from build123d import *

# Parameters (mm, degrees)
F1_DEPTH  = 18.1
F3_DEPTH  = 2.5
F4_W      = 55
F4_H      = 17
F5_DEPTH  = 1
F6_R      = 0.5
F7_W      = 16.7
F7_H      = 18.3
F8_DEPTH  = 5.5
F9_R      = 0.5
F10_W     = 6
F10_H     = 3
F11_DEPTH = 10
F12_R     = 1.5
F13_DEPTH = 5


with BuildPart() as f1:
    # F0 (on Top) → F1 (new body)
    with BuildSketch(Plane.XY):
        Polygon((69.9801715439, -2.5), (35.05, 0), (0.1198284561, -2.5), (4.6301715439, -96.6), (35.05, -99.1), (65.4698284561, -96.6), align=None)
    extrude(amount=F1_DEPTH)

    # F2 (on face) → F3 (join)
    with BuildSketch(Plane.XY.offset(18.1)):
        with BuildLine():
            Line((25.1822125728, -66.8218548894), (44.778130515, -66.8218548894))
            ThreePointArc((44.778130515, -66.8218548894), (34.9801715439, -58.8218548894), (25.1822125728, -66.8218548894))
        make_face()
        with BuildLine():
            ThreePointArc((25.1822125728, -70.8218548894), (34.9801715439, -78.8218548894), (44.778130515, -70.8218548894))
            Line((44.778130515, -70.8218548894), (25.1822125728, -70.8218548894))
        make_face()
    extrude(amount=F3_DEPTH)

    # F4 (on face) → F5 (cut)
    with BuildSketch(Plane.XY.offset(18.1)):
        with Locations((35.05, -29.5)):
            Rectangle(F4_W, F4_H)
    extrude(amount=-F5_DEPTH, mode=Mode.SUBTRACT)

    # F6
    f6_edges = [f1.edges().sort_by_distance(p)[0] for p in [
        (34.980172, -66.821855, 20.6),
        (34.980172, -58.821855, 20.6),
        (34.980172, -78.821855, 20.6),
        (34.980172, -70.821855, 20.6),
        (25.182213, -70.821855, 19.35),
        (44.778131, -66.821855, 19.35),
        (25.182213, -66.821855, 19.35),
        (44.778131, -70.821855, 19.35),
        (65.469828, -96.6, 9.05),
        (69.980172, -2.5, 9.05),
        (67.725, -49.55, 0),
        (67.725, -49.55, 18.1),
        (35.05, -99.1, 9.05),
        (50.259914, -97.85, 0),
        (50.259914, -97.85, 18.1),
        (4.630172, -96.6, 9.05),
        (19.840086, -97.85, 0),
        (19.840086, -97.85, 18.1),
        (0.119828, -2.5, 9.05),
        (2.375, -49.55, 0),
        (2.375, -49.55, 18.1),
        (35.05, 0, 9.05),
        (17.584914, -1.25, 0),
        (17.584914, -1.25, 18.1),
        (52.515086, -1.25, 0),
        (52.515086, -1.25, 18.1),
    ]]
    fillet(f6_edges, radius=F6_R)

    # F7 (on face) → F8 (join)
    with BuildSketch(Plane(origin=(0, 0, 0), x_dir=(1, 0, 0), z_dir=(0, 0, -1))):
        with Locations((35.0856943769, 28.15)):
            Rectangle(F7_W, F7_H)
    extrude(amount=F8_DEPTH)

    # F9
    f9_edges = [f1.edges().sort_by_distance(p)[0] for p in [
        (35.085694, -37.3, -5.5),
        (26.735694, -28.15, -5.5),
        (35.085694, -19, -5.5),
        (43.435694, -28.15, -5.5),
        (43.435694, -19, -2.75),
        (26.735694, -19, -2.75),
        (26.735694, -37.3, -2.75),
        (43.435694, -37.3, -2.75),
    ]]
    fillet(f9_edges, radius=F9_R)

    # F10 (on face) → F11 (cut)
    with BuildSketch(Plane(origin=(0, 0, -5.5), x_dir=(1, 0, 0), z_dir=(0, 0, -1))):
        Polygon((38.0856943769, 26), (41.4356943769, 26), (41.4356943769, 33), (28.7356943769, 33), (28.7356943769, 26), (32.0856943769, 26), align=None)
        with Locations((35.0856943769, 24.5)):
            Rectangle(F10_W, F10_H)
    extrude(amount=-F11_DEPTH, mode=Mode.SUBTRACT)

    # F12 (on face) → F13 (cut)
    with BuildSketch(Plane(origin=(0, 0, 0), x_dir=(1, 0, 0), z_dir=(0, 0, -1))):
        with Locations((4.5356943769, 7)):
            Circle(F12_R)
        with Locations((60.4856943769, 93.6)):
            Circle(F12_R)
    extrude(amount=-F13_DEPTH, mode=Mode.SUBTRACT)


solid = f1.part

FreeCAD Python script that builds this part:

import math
import FreeCAD as App
import Part
import Sketcher

V = App.Vector
Q = App.Units.Quantity


def edges_at(feature, points):
    """Names of the edges that pass closest to the given points."""
    edges = feature.Shape.Edges
    near = lambda p: min(range(len(edges)), key=lambda i: edges[i].distToShape(Part.Vertex(*p))[0])
    return sorted({f"Edge{near(p) + 1}" for p in points})

doc = App.newDocument("Part")
body = doc.addObject("PartDesign::Body", "Body")

# Sketch on XY plane
sketch1 = doc.addObject("Sketcher::SketchObject", "Sketch")
body.addObject(sketch1)
sketch1.AttachmentSupport = (doc.XY_Plane, [""])
sketch1.MapMode = "FlatFace"
sketch1.addGeometry(Part.LineSegment(V(70, -2, 0), V(35, 0, 0)), False)
sketch1.addGeometry(Part.LineSegment(V(35, 0, 0), V(0, -2, 0)), False)
sketch1.addGeometry(Part.LineSegment(V(0, -2, 0), V(5, -97, 0)), False)
sketch1.addGeometry(Part.LineSegment(V(5, -97, 0), V(35, -99, 0)), False)
sketch1.addGeometry(Part.LineSegment(V(35, -99, 0), V(65, -97, 0)), False)
sketch1.addGeometry(Part.LineSegment(V(65, -97, 0), V(70, -2, 0)), False)
sketch1.addConstraint(Sketcher.Constraint("Coincident", 0, 2, 1, 1))
sketch1.addConstraint(Sketcher.Constraint("Coincident", 1, 2, 2, 1))
sketch1.addConstraint(Sketcher.Constraint("Coincident", 2, 2, 3, 1))
sketch1.addConstraint(Sketcher.Constraint("Coincident", 3, 2, 4, 1))
sketch1.addConstraint(Sketcher.Constraint("Coincident", 4, 2, 5, 1))
sketch1.addConstraint(Sketcher.Constraint("Coincident", 5, 2, 0, 1))
sketch1.addConstraint(Sketcher.Constraint("PointOnObject", 0, 2, -1))
sketch1.addConstraint(Sketcher.Constraint("Horizontal", 2, 2, 4, 2))
sketch1.addConstraint(Sketcher.Constraint("Horizontal", 1, 2, 5, 2))
sketch1.addConstraint(Sketcher.Constraint("Vertical", 0, 2, 3, 2))
sketch1.addConstraint(Sketcher.Constraint("Equal", 0, 1))
sketch1.addConstraint(Sketcher.Constraint("Equal", 3, 4))
sketch1.addConstraint(Sketcher.Constraint("DistanceY", 1, 2, -1, 1, Q("2.5 mm")))
sketch1.addConstraint(Sketcher.Constraint("DistanceY", 2, 2, -1, 1, Q("96.6 mm")))
sketch1.addConstraint(Sketcher.Constraint("DistanceY", 3, 2, -1, 1, Q("99.1 mm")))
sketch1.addConstraint(Sketcher.Constraint("DistanceX", -1, 1, 0, 2, Q("35.05 mm")))
sketch1.addConstraint(Sketcher.Constraint("DistanceX", 1, 2, 4, 2, Q("65.35 mm")))
sketch1.addConstraint(Sketcher.Constraint("Distance", 0, Q("35.019521 mm")))
pad1 = doc.addObject("PartDesign::Pad", "Pad")
body.addObject(pad1)
pad1.Profile = sketch1
pad1.Length = 18.1

# Sketch on XY plane
sketch2 = doc.addObject("Sketcher::SketchObject", "Sketch001")
body.addObject(sketch2)
sketch2.AttachmentSupport = (doc.XY_Plane, [""])
sketch2.MapMode = "FlatFace"
sketch2.AttachmentOffset = App.Placement(V(0, 0, 18.1), App.Rotation())
sketch2.addGeometry(Part.LineSegment(V(25, -67, 0), V(45, -67, 0)), False)
sketch2.addGeometry(Part.ArcOfCircle(Part.Circle(V(35, -69, 0), V(0, 0, 1), 10), math.radians(12), math.radians(168)), False)
sketch2.addGeometry(Part.ArcOfCircle(Part.Circle(V(35, -69, 0), V(0, 0, 1), 10), math.radians(-168), math.radians(-12)), False)
sketch2.addGeometry(Part.LineSegment(V(45, -71, 0), V(25, -71, 0)), False)
sketch2.addConstraint(Sketcher.Constraint("Coincident", 0, 1, 1, 2))
sketch2.addConstraint(Sketcher.Constraint("Coincident", 1, 1, 0, 2))
sketch2.addConstraint(Sketcher.Constraint("Coincident", 2, 1, 3, 2))
sketch2.addConstraint(Sketcher.Constraint("Coincident", 3, 1, 2, 2))
sketch2.addConstraint(Sketcher.Constraint("Horizontal", 0))
sketch2.addConstraint(Sketcher.Constraint("Horizontal", 3))
sketch2.addConstraint(Sketcher.Constraint("Coincident", 2, 3, 1, 3))
sketch2.addConstraint(Sketcher.Constraint("Equal", 1, 2))
sketch2.addConstraint(Sketcher.Constraint("Vertical", 0, 1, 2, 1))
sketch2.addConstraint(Sketcher.Constraint("Radius", 1, Q("10 mm")))
sketch2.addConstraint(Sketcher.Constraint("DistanceY", 1, 3, 0, 1, Q("2 mm")))
sketch2.addConstraint(Sketcher.Constraint("DistanceX", -1, 1, 1, 3, Q("34.980172 mm")))
sketch2.addConstraint(Sketcher.Constraint("DistanceY", 1, 3, -1, 1, Q("68.821855 mm")))
pad2 = doc.addObject("PartDesign::Pad", "Pad001")
body.addObject(pad2)
pad2.Profile = sketch2
pad2.Length = 2.5

# Sketch on XY plane
sketch3 = doc.addObject("Sketcher::SketchObject", "Sketch002")
body.addObject(sketch3)
sketch3.AttachmentSupport = (doc.XY_Plane, [""])
sketch3.MapMode = "FlatFace"
sketch3.AttachmentOffset = App.Placement(V(0, 0, 18.1), App.Rotation())
sketch3.addGeometry(Part.LineSegment(V(8, -21, 0), V(8, -38, 0)), False)
sketch3.addGeometry(Part.LineSegment(V(8, -38, 0), V(63, -38, 0)), False)
sketch3.addGeometry(Part.LineSegment(V(63, -38, 0), V(63, -21, 0)), False)
sketch3.addGeometry(Part.LineSegment(V(63, -21, 0), V(8, -21, 0)), False)
sketch3.addConstraint(Sketcher.Constraint("Coincident", 0, 2, 1, 1))
sketch3.addConstraint(Sketcher.Constraint("Coincident", 1, 2, 2, 1))
sketch3.addConstraint(Sketcher.Constraint("Coincident", 2, 2, 3, 1))
sketch3.addConstraint(Sketcher.Constraint("Coincident", 3, 2, 0, 1))
sketch3.addConstraint(Sketcher.Constraint("Vertical", 0))
sketch3.addConstraint(Sketcher.Constraint("Horizontal", 1))
sketch3.addConstraint(Sketcher.Constraint("Vertical", 2))
sketch3.addConstraint(Sketcher.Constraint("Horizontal", 3))
sketch3.addConstraint(Sketcher.Constraint("DistanceX", 1, 1, 1, 2, Q("55 mm")))
sketch3.addConstraint(Sketcher.Constraint("DistanceY", 0, 2, 0, 1, Q("17 mm")))
sketch3.addConstraint(Sketcher.Constraint("DistanceY", 0, 2, -1, 1, Q("38 mm")))
sketch3.addConstraint(Sketcher.Constraint("DistanceX", -1, 1, 0, 2, Q("7.55 mm")))
pocket1 = doc.addObject("PartDesign::Pocket", "Pocket")
body.addObject(pocket1)
pocket1.Profile = sketch3
pocket1.Length = 1
doc.recompute()

fillet = doc.addObject("PartDesign::Fillet", "Fillet")
body.addObject(fillet)
fillet.Base = (pocket1, edges_at(pocket1, [
    (34.98, -66.822, 20.6),
    (34.98, -58.822, 20.6),
    (34.98, -78.822, 20.6),
    (34.98, -70.822, 20.6),
    (25.182, -70.822, 19.35),
    (44.778, -66.822, 19.35),
    (25.182, -66.822, 19.35),
    (44.778, -70.822, 19.35),
    (65.47, -96.6, 9.05),
    (69.98, -2.5, 9.05),
    (67.725, -49.55, 0),
    (67.725, -49.55, 18.1),
    (35.05, -99.1, 9.05),
    (50.26, -97.85, 0),
    (50.26, -97.85, 18.1),
    (4.63, -96.6, 9.05),
    (19.84, -97.85, 0),
    (19.84, -97.85, 18.1),
    (0.12, -2.5, 9.05),
    (2.375, -49.55, 0),
    (2.375, -49.55, 18.1),
    (35.05, 0, 9.05),
    (17.585, -1.25, 0),
    (17.585, -1.25, 18.1),
    (52.515, -1.25, 0),
    (52.515, -1.25, 18.1),
]))
fillet.Radius = 0.5

# Sketch on XY plane
sketch4 = doc.addObject("Sketcher::SketchObject", "Sketch003")
body.addObject(sketch4)
sketch4.AttachmentSupport = (doc.XY_Plane, [""])
sketch4.MapMode = "FlatFace"
sketch4.addGeometry(Part.LineSegment(V(27, -37, 0), V(27, -19, 0)), False)
sketch4.addGeometry(Part.LineSegment(V(27, -19, 0), V(43, -19, 0)), False)
sketch4.addGeometry(Part.LineSegment(V(43, -19, 0), V(43, -37, 0)), False)
sketch4.addGeometry(Part.LineSegment(V(43, -37, 0), V(27, -37, 0)), False)
sketch4.addConstraint(Sketcher.Constraint("Coincident", 0, 2, 1, 1))
sketch4.addConstraint(Sketcher.Constraint("Coincident", 1, 2, 2, 1))
sketch4.addConstraint(Sketcher.Constraint("Coincident", 2, 2, 3, 1))
sketch4.addConstraint(Sketcher.Constraint("Coincident", 3, 2, 0, 1))
sketch4.addConstraint(Sketcher.Constraint("Vertical", 0))
sketch4.addConstraint(Sketcher.Constraint("Horizontal", 1))
sketch4.addConstraint(Sketcher.Constraint("Vertical", 2))
sketch4.addConstraint(Sketcher.Constraint("Horizontal", 3))
sketch4.addConstraint(Sketcher.Constraint("DistanceX", 1, 1, 1, 2, Q("16.7 mm")))
sketch4.addConstraint(Sketcher.Constraint("DistanceY", 0, 1, 0, 2, Q("18.3 mm")))
sketch4.addConstraint(Sketcher.Constraint("DistanceY", 0, 2, -1, 1, Q("19 mm")))
sketch4.addConstraint(Sketcher.Constraint("DistanceX", -1, 1, 0, 2, Q("26.735694 mm")))
pad3 = doc.addObject("PartDesign::Pad", "Pad002")
body.addObject(pad3)
pad3.Profile = sketch4
pad3.Length = 5.5
pad3.Reversed = True
doc.recompute()

fillet2 = doc.addObject("PartDesign::Fillet", "Fillet001")
body.addObject(fillet2)
fillet2.Base = (pad3, edges_at(pad3, [
    (35.086, -37.3, -5.5),
    (26.736, -28.15, -5.5),
    (35.086, -19, -5.5),
    (43.436, -28.15, -5.5),
    (43.436, -19, -2.75),
    (26.736, -19, -2.75),
    (26.736, -37.3, -2.75),
    (43.436, -37.3, -2.75),
]))
fillet2.Radius = 0.5

# Sketch on XY plane
sketch5 = doc.addObject("Sketcher::SketchObject", "Sketch004")
body.addObject(sketch5)
sketch5.AttachmentSupport = (doc.XY_Plane, [""])
sketch5.MapMode = "FlatFace"
sketch5.AttachmentOffset = App.Placement(V(0, 0, -5.5), App.Rotation())
sketch5.addGeometry(Part.LineSegment(V(41.4, -26, 0), V(41.4, -33, 0)), False)
sketch5.addGeometry(Part.LineSegment(V(41.4, -33, 0), V(28.7, -33, 0)), False)
sketch5.addGeometry(Part.LineSegment(V(28.7, -33, 0), V(28.7, -26, 0)), False)
sketch5.addGeometry(Part.LineSegment(V(28.7, -26, 0), V(32.1, -26, 0)), False)
sketch5.addGeometry(Part.LineSegment(V(32.1, -26, 0), V(32.1, -23, 0)), False)
sketch5.addGeometry(Part.LineSegment(V(32.1, -23, 0), V(38.1, -23, 0)), False)
sketch5.addGeometry(Part.LineSegment(V(38.1, -23, 0), V(38.1, -26, 0)), False)
sketch5.addGeometry(Part.LineSegment(V(38.1, -26, 0), V(41.4, -26, 0)), False)
sketch5.addConstraint(Sketcher.Constraint("Coincident", 0, 2, 1, 1))
sketch5.addConstraint(Sketcher.Constraint("Coincident", 1, 2, 2, 1))
sketch5.addConstraint(Sketcher.Constraint("Coincident", 2, 2, 3, 1))
sketch5.addConstraint(Sketcher.Constraint("Coincident", 3, 2, 4, 1))
sketch5.addConstraint(Sketcher.Constraint("Coincident", 4, 2, 5, 1))
sketch5.addConstraint(Sketcher.Constraint("Coincident", 5, 2, 6, 1))
sketch5.addConstraint(Sketcher.Constraint("Coincident", 6, 2, 7, 1))
sketch5.addConstraint(Sketcher.Constraint("Coincident", 7, 2, 0, 1))
sketch5.addConstraint(Sketcher.Constraint("Vertical", 0))
sketch5.addConstraint(Sketcher.Constraint("Horizontal", 1))
sketch5.addConstraint(Sketcher.Constraint("Vertical", 2))
sketch5.addConstraint(Sketcher.Constraint("Horizontal", 3))
sketch5.addConstraint(Sketcher.Constraint("Vertical", 4))
sketch5.addConstraint(Sketcher.Constraint("Horizontal", 5))
sketch5.addConstraint(Sketcher.Constraint("Vertical", 6))
sketch5.addConstraint(Sketcher.Constraint("Horizontal", 7))
sketch5.addConstraint(Sketcher.Constraint("Horizontal", 3, 2, 6, 2))
sketch5.addConstraint(Sketcher.Constraint("Equal", 3, 7))
sketch5.addConstraint(Sketcher.Constraint("DistanceX", 5, 1, 5, 2, Q("6 mm")))
sketch5.addConstraint(Sketcher.Constraint("DistanceY", 0, 2, 0, 1, Q("7 mm")))
sketch5.addConstraint(Sketcher.Constraint("DistanceY", 4, 1, 4, 2, Q("3 mm")))
sketch5.addConstraint(Sketcher.Constraint("DistanceX", 1, 2, 1, 1, Q("12.7 mm")))
sketch5.addConstraint(Sketcher.Constraint("DistanceY", 0, 2, -1, 1, Q("33 mm")))
sketch5.addConstraint(Sketcher.Constraint("DistanceX", -1, 1, 0, 2, Q("41.435694 mm")))
pocket2 = doc.addObject("PartDesign::Pocket", "Pocket001")
body.addObject(pocket2)
pocket2.Profile = sketch5
pocket2.Length = 10
pocket2.Reversed = True

# Sketch on XY plane
sketch6 = doc.addObject("Sketcher::SketchObject", "Sketch005")
body.addObject(sketch6)
sketch6.AttachmentSupport = (doc.XY_Plane, [""])
sketch6.MapMode = "FlatFace"
sketch6.addGeometry(Part.Circle(V(4.5, -7, 0), V(0, 0, 1), 1.5), False)
sketch6.addGeometry(Part.Circle(V(60.5, -93.6, 0), V(0, 0, 1), 1.5), False)
sketch6.addConstraint(Sketcher.Constraint("Equal", 0, 1))
sketch6.addConstraint(Sketcher.Constraint("Diameter", 0, Q("3 mm")))
sketch6.addConstraint(Sketcher.Constraint("DistanceY", 0, 3, -1, 1, Q("7 mm")))
sketch6.addConstraint(Sketcher.Constraint("DistanceY", 1, 3, -1, 1, Q("93.6 mm")))
sketch6.addConstraint(Sketcher.Constraint("DistanceX", 0, 3, 1, 3, Q("55.95 mm")))
sketch6.addConstraint(Sketcher.Constraint("DistanceX", -1, 1, 0, 3, Q("4.535694 mm")))
pocket3 = doc.addObject("PartDesign::Pocket", "Pocket002")
body.addObject(pocket3)
pocket3.Profile = sketch6
pocket3.Length = 5
pocket3.Reversed = True

doc.recompute()
